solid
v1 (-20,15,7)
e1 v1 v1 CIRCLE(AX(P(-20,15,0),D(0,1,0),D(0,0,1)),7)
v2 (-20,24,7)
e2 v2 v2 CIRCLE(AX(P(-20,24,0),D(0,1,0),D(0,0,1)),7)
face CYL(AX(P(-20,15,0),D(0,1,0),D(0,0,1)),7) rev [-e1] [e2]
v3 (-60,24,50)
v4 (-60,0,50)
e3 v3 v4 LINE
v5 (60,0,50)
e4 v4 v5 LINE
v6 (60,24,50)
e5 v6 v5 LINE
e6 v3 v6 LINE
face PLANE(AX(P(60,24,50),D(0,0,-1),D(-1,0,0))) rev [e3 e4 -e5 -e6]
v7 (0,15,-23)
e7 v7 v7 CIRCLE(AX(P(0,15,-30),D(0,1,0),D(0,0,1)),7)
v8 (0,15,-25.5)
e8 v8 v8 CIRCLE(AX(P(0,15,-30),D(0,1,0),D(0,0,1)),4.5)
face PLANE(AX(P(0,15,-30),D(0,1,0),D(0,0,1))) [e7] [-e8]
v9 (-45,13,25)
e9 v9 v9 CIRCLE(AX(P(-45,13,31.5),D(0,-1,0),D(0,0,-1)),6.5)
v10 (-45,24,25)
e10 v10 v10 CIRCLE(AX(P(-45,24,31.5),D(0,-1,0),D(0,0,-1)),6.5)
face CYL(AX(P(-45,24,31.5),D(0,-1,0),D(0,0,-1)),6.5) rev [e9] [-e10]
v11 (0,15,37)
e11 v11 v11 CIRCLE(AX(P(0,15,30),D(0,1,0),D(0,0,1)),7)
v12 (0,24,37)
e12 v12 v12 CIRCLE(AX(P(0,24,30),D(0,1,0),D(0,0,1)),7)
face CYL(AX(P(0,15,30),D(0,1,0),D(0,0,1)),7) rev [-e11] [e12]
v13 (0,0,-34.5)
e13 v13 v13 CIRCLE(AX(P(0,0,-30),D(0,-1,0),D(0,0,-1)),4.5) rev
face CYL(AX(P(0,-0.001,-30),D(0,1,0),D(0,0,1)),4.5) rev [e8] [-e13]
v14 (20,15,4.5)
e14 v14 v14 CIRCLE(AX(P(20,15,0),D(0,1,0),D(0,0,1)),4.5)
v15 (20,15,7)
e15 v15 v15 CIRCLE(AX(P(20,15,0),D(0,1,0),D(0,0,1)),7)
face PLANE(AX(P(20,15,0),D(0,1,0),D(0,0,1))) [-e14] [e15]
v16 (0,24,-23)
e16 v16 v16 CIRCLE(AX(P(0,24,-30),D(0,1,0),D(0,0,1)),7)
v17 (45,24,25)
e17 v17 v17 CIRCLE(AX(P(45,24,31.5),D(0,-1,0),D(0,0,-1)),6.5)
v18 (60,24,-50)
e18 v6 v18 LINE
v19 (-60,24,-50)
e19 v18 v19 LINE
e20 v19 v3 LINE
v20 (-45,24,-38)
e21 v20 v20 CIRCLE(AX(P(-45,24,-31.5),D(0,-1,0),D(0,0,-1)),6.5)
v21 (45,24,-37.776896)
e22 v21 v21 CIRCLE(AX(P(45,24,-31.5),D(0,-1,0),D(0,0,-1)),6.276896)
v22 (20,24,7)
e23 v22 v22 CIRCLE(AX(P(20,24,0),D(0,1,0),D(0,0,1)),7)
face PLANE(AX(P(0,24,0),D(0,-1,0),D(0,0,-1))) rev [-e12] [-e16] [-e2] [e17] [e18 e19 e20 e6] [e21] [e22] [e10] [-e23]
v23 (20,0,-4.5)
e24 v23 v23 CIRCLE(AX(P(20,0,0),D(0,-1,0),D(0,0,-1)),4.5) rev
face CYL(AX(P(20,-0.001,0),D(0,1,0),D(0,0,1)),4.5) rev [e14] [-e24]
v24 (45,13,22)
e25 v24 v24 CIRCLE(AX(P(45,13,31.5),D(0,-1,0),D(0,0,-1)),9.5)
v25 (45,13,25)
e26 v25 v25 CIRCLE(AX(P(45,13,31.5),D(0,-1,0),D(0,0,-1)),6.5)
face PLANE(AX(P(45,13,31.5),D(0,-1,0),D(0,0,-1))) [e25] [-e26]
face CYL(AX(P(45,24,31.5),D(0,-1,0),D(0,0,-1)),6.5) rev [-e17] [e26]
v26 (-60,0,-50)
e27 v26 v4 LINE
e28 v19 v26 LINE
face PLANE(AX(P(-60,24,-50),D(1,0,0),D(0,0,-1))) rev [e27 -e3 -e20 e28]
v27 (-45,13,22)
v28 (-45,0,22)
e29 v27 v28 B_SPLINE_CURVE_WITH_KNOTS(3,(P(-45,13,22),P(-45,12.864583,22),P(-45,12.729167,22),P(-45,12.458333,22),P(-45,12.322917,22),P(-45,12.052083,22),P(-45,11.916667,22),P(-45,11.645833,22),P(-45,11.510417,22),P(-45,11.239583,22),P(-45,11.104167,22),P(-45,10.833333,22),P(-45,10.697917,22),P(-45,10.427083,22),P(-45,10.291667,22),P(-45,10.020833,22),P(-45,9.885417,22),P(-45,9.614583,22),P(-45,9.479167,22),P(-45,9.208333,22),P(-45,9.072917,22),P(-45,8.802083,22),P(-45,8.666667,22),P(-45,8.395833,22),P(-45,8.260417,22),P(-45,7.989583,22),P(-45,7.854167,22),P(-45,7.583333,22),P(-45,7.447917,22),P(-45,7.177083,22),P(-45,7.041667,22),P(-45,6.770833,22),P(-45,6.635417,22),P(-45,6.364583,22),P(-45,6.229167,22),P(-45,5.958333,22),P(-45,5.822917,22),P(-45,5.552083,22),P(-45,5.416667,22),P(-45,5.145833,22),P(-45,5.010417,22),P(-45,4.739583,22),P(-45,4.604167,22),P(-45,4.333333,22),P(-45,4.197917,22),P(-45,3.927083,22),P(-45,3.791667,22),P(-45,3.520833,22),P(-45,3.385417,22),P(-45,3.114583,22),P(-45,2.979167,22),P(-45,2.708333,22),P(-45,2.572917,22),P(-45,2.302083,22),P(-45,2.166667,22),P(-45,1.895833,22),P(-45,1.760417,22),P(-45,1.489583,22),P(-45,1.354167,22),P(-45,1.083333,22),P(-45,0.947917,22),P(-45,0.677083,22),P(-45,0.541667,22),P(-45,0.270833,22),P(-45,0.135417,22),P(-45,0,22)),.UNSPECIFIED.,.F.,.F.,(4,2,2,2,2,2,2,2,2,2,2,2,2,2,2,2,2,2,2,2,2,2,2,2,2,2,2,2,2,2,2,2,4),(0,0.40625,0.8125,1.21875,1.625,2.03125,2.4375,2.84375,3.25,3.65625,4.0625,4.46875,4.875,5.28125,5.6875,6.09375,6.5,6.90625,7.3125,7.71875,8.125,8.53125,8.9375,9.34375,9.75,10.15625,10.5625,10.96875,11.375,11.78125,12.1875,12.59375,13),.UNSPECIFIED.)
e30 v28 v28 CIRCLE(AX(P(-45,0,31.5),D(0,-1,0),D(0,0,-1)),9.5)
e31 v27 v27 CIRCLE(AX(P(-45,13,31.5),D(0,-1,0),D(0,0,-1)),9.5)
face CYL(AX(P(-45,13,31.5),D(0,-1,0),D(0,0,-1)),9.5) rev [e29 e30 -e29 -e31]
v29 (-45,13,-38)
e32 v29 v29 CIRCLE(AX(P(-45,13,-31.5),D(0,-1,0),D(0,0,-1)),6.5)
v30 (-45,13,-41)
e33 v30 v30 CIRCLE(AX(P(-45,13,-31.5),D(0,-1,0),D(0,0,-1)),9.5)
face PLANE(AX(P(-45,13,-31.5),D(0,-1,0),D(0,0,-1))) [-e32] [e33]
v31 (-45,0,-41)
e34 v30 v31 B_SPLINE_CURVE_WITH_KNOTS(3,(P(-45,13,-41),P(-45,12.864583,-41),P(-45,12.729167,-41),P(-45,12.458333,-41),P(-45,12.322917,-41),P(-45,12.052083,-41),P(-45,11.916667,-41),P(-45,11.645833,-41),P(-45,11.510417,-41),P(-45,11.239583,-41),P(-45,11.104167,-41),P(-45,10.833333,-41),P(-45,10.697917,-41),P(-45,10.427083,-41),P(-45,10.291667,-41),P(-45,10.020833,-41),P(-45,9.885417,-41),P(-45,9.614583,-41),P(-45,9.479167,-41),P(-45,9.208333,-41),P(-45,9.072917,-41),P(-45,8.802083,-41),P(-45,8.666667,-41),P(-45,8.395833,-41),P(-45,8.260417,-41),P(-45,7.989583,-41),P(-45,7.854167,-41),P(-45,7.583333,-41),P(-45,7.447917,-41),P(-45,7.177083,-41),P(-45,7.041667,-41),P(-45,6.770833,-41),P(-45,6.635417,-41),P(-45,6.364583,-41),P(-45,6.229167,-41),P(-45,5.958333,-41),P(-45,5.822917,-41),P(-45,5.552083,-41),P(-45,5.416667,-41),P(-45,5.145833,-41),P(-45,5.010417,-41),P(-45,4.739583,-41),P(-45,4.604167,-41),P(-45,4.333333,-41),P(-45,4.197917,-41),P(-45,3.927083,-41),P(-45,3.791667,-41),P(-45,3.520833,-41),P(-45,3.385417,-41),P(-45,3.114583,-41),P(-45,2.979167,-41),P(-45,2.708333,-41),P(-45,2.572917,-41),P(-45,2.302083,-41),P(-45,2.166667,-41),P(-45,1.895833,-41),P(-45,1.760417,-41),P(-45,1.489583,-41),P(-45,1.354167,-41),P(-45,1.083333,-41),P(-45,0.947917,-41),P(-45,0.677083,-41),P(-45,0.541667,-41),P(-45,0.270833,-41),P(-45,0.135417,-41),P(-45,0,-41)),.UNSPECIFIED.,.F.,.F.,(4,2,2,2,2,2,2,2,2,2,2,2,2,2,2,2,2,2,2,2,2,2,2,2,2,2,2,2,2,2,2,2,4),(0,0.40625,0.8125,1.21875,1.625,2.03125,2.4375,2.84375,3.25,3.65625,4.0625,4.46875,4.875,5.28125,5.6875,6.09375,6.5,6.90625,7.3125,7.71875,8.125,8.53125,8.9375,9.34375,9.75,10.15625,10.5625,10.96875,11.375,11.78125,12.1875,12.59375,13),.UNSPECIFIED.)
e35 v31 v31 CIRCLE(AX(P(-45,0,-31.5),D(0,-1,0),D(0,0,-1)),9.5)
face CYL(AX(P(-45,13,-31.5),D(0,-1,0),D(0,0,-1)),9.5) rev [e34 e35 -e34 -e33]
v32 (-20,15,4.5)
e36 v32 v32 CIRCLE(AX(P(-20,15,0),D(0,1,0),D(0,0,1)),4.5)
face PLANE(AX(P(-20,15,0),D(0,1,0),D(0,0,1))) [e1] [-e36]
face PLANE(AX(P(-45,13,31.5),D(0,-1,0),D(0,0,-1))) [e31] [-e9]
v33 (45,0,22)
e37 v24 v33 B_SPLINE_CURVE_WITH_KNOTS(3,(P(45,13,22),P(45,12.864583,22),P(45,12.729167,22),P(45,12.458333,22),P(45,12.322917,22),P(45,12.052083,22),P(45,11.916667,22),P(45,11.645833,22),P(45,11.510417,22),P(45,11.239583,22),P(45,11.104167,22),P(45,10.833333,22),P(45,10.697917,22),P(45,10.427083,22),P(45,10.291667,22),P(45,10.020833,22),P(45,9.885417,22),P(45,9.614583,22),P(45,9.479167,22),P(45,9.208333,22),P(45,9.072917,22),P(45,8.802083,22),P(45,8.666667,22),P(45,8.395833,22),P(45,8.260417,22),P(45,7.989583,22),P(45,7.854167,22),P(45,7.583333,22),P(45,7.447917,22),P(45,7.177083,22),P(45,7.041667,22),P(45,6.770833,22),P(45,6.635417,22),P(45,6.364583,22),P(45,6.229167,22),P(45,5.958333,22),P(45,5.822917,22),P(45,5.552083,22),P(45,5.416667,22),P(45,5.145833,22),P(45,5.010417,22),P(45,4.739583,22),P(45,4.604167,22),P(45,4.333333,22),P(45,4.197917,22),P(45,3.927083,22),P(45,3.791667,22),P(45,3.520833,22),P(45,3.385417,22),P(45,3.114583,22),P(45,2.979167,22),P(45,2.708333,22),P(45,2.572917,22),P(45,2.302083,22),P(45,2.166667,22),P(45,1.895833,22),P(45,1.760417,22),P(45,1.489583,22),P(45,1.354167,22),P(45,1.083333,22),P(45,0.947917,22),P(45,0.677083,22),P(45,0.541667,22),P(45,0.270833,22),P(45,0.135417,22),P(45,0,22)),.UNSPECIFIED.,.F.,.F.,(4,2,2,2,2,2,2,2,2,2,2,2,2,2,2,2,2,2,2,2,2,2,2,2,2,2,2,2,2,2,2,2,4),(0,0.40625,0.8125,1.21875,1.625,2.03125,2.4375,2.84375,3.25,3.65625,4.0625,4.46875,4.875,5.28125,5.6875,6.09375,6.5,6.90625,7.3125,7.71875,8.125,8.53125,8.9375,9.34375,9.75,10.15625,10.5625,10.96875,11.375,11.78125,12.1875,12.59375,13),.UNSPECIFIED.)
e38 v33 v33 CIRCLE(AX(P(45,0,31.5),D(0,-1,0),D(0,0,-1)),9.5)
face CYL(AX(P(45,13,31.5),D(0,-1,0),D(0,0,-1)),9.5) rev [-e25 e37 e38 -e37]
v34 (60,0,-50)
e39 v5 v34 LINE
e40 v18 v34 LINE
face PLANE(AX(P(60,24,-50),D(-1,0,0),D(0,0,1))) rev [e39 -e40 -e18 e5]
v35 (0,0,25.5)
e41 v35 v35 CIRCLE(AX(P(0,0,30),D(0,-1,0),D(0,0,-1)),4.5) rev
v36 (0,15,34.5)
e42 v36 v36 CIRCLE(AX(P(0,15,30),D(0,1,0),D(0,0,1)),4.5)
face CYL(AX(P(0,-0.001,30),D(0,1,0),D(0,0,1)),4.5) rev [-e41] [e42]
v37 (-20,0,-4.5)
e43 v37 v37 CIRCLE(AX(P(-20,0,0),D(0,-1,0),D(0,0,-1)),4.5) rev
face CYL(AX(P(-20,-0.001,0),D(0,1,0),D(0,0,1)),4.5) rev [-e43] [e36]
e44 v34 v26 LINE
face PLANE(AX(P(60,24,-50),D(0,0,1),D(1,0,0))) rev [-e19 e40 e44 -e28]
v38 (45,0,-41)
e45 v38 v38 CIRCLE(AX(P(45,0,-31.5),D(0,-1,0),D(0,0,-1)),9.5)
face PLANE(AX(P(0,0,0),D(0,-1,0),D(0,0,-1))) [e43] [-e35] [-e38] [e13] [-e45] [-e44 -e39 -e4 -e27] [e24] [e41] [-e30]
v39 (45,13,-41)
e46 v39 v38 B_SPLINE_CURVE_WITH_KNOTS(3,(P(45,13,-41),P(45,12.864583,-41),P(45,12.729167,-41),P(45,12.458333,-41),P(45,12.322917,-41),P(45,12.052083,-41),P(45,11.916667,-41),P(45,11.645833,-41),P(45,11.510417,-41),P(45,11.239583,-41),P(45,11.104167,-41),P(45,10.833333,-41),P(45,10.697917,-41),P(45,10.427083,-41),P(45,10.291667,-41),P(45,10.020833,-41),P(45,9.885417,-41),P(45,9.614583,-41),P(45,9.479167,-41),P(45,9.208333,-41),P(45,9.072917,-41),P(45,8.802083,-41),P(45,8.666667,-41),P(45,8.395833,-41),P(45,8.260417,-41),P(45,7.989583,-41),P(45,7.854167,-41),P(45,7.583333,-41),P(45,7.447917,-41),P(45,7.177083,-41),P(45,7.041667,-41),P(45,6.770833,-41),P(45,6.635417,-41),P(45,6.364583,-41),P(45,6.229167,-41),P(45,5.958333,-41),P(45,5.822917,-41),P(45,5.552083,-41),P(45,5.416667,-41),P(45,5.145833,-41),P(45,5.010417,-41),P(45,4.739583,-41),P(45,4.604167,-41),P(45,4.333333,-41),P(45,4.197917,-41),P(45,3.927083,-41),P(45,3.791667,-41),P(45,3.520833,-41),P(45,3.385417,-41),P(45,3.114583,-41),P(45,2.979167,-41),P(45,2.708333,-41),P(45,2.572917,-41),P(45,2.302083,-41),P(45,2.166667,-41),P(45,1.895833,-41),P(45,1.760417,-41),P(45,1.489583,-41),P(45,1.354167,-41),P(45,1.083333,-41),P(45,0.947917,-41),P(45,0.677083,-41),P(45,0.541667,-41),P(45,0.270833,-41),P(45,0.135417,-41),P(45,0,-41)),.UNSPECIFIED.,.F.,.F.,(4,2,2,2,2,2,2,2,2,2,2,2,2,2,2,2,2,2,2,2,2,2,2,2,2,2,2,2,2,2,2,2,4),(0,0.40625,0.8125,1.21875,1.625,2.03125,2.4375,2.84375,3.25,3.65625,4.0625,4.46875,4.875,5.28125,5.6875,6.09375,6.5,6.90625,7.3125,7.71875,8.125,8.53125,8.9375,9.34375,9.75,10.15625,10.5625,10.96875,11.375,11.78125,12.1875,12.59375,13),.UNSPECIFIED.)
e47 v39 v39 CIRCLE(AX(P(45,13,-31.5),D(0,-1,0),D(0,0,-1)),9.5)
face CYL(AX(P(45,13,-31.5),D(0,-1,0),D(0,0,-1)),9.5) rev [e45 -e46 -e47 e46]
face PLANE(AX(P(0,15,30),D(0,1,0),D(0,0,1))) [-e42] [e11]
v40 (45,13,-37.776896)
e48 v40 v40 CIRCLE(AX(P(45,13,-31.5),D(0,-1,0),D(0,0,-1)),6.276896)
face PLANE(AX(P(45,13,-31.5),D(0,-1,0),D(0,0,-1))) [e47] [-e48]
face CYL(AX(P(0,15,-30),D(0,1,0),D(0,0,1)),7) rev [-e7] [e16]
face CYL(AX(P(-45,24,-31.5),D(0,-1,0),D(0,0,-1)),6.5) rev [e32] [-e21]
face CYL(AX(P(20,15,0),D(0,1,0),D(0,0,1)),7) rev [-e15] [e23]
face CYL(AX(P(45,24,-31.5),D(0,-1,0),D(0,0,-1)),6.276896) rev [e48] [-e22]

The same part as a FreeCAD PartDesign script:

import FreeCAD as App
import Part
import Sketcher

doc = App.newDocument("Part")
body = doc.addObject("PartDesign::Body", "Body")

sketch1 = doc.addObject("Sketcher::SketchObject", "Sketch")
body.addObject(sketch1)
sketch1.AttachmentSupport = (doc.XZ_Plane, [""])
sketch1.MapMode = "FlatFace"
sketch1.addGeometry(Part.LineSegment(App.Vector(-60, -50, 0), App.Vector(-60, 50, 0)), False)
sketch1.addGeometry(Part.LineSegment(App.Vector(-60, 50, 0), App.Vector(60, 50, 0)), False)
sketch1.addGeometry(Part.LineSegment(App.Vector(60, 50, 0), App.Vector(60, -50, 0)), False)
sketch1.addGeometry(Part.LineSegment(App.Vector(60, -50, 0), App.Vector(-60, -50, 0)), False)
sketch1.addConstraint(Sketcher.Constraint("Coincident", 0, 2, 1, 1))
sketch1.addConstraint(Sketcher.Constraint("Coincident", 1, 2, 2, 1))
sketch1.addConstraint(Sketcher.Constraint("Coincident", 2, 2, 3, 1))
sketch1.addConstraint(Sketcher.Constraint("Coincident", 3, 2, 0, 1))
sketch1.addConstraint(Sketcher.Constraint("Vertical", 0))
sketch1.addConstraint(Sketcher.Constraint("Horizontal", 1))
sketch1.addConstraint(Sketcher.Constraint("Vertical", 2))
sketch1.addConstraint(Sketcher.Constraint("Horizontal", 3))
sketch1.addConstraint(Sketcher.Constraint("Symmetric", 0, 2, 2, 2, -1, 1))
sketch1.addConstraint(Sketcher.Constraint("DistanceX", 1, 1, 1, 2, 120.0))
sketch1.addConstraint(Sketcher.Constraint("DistanceY", 0, 1, 0, 2, 100.0))
pad1 = doc.addObject("PartDesign::Pad", "Pad")
body.addObject(pad1)
pad1.Profile = sketch1
pad1.Length = 24
pad1.Reversed = True

sketch2 = doc.addObject("Sketcher::SketchObject", "Sketch001")
body.addObject(sketch2)
sketch2.AttachmentSupport = (doc.XZ_Plane, [""])
sketch2.MapMode = "FlatFace"
sketch2.AttachmentOffset = App.Placement(App.Vector(0, 0, -24), App.Rotation())
sketch2.addGeometry(Part.Circle(App.Vector(0, -30, 0), App.Vector(0, 0, 1), 7), False)
sketch2.addGeometry(Part.Circle(App.Vector(0, 30, 0), App.Vector(0, 0, 1), 7), False)
sketch2.addGeometry(Part.Circle(App.Vector(-20, 0, 0), App.Vector(0, 0, 1), 7), False)
sketch2.addGeometry(Part.Circle(App.Vector(20, 0, 0), App.Vector(0, 0, 1), 7), False)
sketch2.addConstraint(Sketcher.Constraint("Equal", 0, 1))
sketch2.addConstraint(Sketcher.Constraint("Equal", 1, 2))
sketch2.addConstraint(Sketcher.Constraint("Equal", 2, 3))
sketch2.addConstraint(Sketcher.Constraint("Symmetric", 0, 3, 1, 3, -1, 1))
sketch2.addConstraint(Sketcher.Constraint("Symmetric", 2, 3, 3, 3, -1, 1))
sketch2.addConstraint(Sketcher.Constraint("PointOnObject", 0, 3, -2))
sketch2.addConstraint(Sketcher.Constraint("PointOnObject", 2, 3, -1))
sketch2.addConstraint(Sketcher.Constraint("Diameter", 0, 14.0))
sketch2.addConstraint(Sketcher.Constraint("DistanceY", 0, 3, -1, 1, 30.0))
sketch2.addConstraint(Sketcher.Constraint("DistanceX", 2, 3, -1, 1, 20.0))
pocket1 = doc.addObject("PartDesign::Pocket", "Pocket")
body.addObject(pocket1)
pocket1.Profile = sketch2
pocket1.Length = 9
pocket1.Reversed = True

sketch3 = doc.addObject("Sketcher::SketchObject", "Sketch002")
body.addObject(sketch3)
sketch3.AttachmentSupport = (doc.XZ_Plane, [""])
sketch3.MapMode = "FlatFace"
sketch3.AttachmentOffset = App.Placement(App.Vector(0, 0, -15), App.Rotation())
sketch3.addGeometry(Part.Circle(App.Vector(-20, 0, 0), App.Vector(0, 0, 1), 4.5), False)
sketch3.addConstraint(Sketcher.Constraint("PointOnObject", 0, 3, -1))
sketch3.addConstraint(Sketcher.Constraint("Diameter", 0, 9.0))
sketch3.addConstraint(Sketcher.Constraint("DistanceX", 0, 3, -1, 1, 20.0))
pocket2 = doc.addObject("PartDesign::Pocket", "Pocket001")
body.addObject(pocket2)
pocket2.Profile = sketch3
pocket2.Type = "UpToFirst"
pocket2.Reversed = True

sketch4 = doc.addObject("Sketcher::SketchObject", "Sketch003")
body.addObject(sketch4)
sketch4.AttachmentSupport = (doc.XZ_Plane, [""])
sketch4.MapMode = "FlatFace"
sketch4.AttachmentOffset = App.Placement(App.Vector(0, 0, -15), App.Rotation())
sketch4.addGeometry(Part.Circle(App.Vector(0, -30, 0), App.Vector(0, 0, 1), 4.5), False)
sketch4.addConstraint(Sketcher.Constraint("PointOnObject", 0, 3, -2))
sketch4.addConstraint(Sketcher.Constraint("Diameter", 0, 9.0))
sketch4.addConstraint(Sketcher.Constraint("DistanceY", 0, 3, -1, 1, 30.0))
pocket3 = doc.addObject("PartDesign::Pocket", "Pocket002")
body.addObject(pocket3)
pocket3.Profile = sketch4
pocket3.Type = "UpToFirst"
pocket3.Reversed = True

sketch5 = doc.addObject("Sketcher::SketchObject", "Sketch004")
body.addObject(sketch5)
sketch5.AttachmentSupport = (doc.XZ_Plane, [""])
sketch5.MapMode = "FlatFace"
sketch5.AttachmentOffset = App.Placement(App.Vector(0, 0, -15), App.Rotation())
sketch5.addGeometry(Part.Circle(App.Vector(20, 0, 0), App.Vector(0, 0, 1), 4.5), False)
sketch5.addConstraint(Sketcher.Constraint("PointOnObject", 0, 3, -1))
sketch5.addConstraint(Sketcher.Constraint("Diameter", 0, 9.0))
sketch5.addConstraint(Sketcher.Constraint("DistanceX", -1, 1, 0, 3, 20.0))
pocket4 = doc.addObject("PartDesign::Pocket", "Pocket003")
body.addObject(pocket4)
pocket4.Profile = sketch5
pocket4.Type = "UpToFirst"
pocket4.Reversed = True

sketch6 = doc.addObject("Sketcher::SketchObject", "Sketch005")
body.addObject(sketch6)
sketch6.AttachmentSupport = (doc.XZ_Plane, [""])
sketch6.MapMode = "FlatFace"
sketch6.AttachmentOffset = App.Placement(App.Vector(0, 0, -15), App.Rotation())
sketch6.addGeometry(Part.Circle(App.Vector(0, 30, 0), App.Vector(0, 0, 1), 4.5), False)
sketch6.addConstraint(Sketcher.Constraint("PointOnObject", 0, 3, -2))
sketch6.addConstraint(Sketcher.Constraint("Diameter", 0, 9.0))
sketch6.addConstraint(Sketcher.Constraint("DistanceY", -1, 1, 0, 3, 30.0))
pocket5 = doc.addObject("PartDesign::Pocket", "Pocket004")
body.addObject(pocket5)
pocket5.Profile = sketch6
pocket5.Type = "UpToFirst"
pocket5.Reversed = True

sketch7 = doc.addObject("Sketcher::SketchObject", "Sketch006")
body.addObject(sketch7)
sketch7.AttachmentSupport = (doc.XZ_Plane, [""])
sketch7.MapMode = "FlatFace"
sketch7.addGeometry(Part.Circle(App.Vector(-45, 32, 0), App.Vector(0, 0, 1), 10), False)
sketch7.addGeometry(Part.Circle(App.Vector(45, 32, 0), App.Vector(0, 0, 1), 10), False)
sketch7.addGeometry(Part.Circle(App.Vector(45, -32, 0), App.Vector(0, 0, 1), 10), False)
sketch7.addGeometry(Part.Circle(App.Vector(-45, -32, 0), App.Vector(0, 0, 1), 10), False)
sketch7.addConstraint(Sketcher.Constraint("Equal", 0, 1))
sketch7.addConstraint(Sketcher.Constraint("Equal", 1, 2))
sketch7.addConstraint(Sketcher.Constraint("Equal", 2, 3))
sketch7.addConstraint(Sketcher.Constraint("Symmetric", 0, 3, 2, 3, -1, 1))
sketch7.addConstraint(Sketcher.Constraint("Symmetric", 1, 3, 3, 3, -1, 1))
sketch7.addConstraint(Sketcher.Constraint("Symmetric", 0, 3, 1, 3, -2))
sketch7.addConstraint(Sketcher.Constraint("Diameter", 0, 19.0))
sketch7.addConstraint(Sketcher.Constraint("DistanceX", 0, 3, -1, 1, 45.0))
sketch7.addConstraint(Sketcher.Constraint("DistanceY", 2, 3, 1, 3, 63.0))
pocket6 = doc.addObject("PartDesign::Pocket", "Pocket005")
body.addObject(pocket6)
pocket6.Profile = sketch7
pocket6.Length = 13

sketch8 = doc.addObject("Sketcher::SketchObject", "Sketch007")
body.addObject(sketch8)
sketch8.AttachmentSupport = (doc.XZ_Plane, [""])
sketch8.MapMode = "FlatFace"
sketch8.AttachmentOffset = App.Placement(App.Vector(0, 0, -13), App.Rotation())
sketch8.addGeometry(Part.Circle(App.Vector(-45, 32, 0), App.Vector(0, 0, 1), 6), False)
sketch8.addGeometry(Part.Circle(App.Vector(45, 32, 0), App.Vector(0, 0, 1), 6), False)
sketch8.addGeometry(Part.Circle(App.Vector(-45, -32, 0), App.Vector(0, 0, 1), 6), False)
sketch8.addGeometry(Part.Circle(App.Vector(45, -32, 0), App.Vector(0, 0, 1), 6), False)
sketch8.addConstraint(Sketcher.Constraint("Equal", 0, 1))
sketch8.addConstraint(Sketcher.Constraint("Equal", 1, 2))
sketch8.addConstraint(Sketcher.Constraint("Symmetric", 1, 3, 2, 3, -1, 1))
sketch8.addConstraint(Sketcher.Constraint("Symmetric", 0, 3, 3, 3, -1, 1))
sketch8.addConstraint(Sketcher.Constraint("Symmetric", 0, 3, 1, 3, -2))
sketch8.addConstraint(Sketcher.Constraint("Diameter", 0, 13.0))
sketch8.addConstraint(Sketcher.Constraint("DistanceX", 0, 3, -1, 1, 45.0))
sketch8.addConstraint(Sketcher.Constraint("DistanceY", 2, 3, 0, 3, 63.0))
sketch8.addConstraint(Sketcher.Constraint("Diameter", 3, 12.553791))
pocket7 = doc.addObject("PartDesign::Pocket", "Pocket006")
body.addObject(pocket7)
pocket7.Profile = sketch8
pocket7.Type = "ThroughAll"

doc.recompute()
